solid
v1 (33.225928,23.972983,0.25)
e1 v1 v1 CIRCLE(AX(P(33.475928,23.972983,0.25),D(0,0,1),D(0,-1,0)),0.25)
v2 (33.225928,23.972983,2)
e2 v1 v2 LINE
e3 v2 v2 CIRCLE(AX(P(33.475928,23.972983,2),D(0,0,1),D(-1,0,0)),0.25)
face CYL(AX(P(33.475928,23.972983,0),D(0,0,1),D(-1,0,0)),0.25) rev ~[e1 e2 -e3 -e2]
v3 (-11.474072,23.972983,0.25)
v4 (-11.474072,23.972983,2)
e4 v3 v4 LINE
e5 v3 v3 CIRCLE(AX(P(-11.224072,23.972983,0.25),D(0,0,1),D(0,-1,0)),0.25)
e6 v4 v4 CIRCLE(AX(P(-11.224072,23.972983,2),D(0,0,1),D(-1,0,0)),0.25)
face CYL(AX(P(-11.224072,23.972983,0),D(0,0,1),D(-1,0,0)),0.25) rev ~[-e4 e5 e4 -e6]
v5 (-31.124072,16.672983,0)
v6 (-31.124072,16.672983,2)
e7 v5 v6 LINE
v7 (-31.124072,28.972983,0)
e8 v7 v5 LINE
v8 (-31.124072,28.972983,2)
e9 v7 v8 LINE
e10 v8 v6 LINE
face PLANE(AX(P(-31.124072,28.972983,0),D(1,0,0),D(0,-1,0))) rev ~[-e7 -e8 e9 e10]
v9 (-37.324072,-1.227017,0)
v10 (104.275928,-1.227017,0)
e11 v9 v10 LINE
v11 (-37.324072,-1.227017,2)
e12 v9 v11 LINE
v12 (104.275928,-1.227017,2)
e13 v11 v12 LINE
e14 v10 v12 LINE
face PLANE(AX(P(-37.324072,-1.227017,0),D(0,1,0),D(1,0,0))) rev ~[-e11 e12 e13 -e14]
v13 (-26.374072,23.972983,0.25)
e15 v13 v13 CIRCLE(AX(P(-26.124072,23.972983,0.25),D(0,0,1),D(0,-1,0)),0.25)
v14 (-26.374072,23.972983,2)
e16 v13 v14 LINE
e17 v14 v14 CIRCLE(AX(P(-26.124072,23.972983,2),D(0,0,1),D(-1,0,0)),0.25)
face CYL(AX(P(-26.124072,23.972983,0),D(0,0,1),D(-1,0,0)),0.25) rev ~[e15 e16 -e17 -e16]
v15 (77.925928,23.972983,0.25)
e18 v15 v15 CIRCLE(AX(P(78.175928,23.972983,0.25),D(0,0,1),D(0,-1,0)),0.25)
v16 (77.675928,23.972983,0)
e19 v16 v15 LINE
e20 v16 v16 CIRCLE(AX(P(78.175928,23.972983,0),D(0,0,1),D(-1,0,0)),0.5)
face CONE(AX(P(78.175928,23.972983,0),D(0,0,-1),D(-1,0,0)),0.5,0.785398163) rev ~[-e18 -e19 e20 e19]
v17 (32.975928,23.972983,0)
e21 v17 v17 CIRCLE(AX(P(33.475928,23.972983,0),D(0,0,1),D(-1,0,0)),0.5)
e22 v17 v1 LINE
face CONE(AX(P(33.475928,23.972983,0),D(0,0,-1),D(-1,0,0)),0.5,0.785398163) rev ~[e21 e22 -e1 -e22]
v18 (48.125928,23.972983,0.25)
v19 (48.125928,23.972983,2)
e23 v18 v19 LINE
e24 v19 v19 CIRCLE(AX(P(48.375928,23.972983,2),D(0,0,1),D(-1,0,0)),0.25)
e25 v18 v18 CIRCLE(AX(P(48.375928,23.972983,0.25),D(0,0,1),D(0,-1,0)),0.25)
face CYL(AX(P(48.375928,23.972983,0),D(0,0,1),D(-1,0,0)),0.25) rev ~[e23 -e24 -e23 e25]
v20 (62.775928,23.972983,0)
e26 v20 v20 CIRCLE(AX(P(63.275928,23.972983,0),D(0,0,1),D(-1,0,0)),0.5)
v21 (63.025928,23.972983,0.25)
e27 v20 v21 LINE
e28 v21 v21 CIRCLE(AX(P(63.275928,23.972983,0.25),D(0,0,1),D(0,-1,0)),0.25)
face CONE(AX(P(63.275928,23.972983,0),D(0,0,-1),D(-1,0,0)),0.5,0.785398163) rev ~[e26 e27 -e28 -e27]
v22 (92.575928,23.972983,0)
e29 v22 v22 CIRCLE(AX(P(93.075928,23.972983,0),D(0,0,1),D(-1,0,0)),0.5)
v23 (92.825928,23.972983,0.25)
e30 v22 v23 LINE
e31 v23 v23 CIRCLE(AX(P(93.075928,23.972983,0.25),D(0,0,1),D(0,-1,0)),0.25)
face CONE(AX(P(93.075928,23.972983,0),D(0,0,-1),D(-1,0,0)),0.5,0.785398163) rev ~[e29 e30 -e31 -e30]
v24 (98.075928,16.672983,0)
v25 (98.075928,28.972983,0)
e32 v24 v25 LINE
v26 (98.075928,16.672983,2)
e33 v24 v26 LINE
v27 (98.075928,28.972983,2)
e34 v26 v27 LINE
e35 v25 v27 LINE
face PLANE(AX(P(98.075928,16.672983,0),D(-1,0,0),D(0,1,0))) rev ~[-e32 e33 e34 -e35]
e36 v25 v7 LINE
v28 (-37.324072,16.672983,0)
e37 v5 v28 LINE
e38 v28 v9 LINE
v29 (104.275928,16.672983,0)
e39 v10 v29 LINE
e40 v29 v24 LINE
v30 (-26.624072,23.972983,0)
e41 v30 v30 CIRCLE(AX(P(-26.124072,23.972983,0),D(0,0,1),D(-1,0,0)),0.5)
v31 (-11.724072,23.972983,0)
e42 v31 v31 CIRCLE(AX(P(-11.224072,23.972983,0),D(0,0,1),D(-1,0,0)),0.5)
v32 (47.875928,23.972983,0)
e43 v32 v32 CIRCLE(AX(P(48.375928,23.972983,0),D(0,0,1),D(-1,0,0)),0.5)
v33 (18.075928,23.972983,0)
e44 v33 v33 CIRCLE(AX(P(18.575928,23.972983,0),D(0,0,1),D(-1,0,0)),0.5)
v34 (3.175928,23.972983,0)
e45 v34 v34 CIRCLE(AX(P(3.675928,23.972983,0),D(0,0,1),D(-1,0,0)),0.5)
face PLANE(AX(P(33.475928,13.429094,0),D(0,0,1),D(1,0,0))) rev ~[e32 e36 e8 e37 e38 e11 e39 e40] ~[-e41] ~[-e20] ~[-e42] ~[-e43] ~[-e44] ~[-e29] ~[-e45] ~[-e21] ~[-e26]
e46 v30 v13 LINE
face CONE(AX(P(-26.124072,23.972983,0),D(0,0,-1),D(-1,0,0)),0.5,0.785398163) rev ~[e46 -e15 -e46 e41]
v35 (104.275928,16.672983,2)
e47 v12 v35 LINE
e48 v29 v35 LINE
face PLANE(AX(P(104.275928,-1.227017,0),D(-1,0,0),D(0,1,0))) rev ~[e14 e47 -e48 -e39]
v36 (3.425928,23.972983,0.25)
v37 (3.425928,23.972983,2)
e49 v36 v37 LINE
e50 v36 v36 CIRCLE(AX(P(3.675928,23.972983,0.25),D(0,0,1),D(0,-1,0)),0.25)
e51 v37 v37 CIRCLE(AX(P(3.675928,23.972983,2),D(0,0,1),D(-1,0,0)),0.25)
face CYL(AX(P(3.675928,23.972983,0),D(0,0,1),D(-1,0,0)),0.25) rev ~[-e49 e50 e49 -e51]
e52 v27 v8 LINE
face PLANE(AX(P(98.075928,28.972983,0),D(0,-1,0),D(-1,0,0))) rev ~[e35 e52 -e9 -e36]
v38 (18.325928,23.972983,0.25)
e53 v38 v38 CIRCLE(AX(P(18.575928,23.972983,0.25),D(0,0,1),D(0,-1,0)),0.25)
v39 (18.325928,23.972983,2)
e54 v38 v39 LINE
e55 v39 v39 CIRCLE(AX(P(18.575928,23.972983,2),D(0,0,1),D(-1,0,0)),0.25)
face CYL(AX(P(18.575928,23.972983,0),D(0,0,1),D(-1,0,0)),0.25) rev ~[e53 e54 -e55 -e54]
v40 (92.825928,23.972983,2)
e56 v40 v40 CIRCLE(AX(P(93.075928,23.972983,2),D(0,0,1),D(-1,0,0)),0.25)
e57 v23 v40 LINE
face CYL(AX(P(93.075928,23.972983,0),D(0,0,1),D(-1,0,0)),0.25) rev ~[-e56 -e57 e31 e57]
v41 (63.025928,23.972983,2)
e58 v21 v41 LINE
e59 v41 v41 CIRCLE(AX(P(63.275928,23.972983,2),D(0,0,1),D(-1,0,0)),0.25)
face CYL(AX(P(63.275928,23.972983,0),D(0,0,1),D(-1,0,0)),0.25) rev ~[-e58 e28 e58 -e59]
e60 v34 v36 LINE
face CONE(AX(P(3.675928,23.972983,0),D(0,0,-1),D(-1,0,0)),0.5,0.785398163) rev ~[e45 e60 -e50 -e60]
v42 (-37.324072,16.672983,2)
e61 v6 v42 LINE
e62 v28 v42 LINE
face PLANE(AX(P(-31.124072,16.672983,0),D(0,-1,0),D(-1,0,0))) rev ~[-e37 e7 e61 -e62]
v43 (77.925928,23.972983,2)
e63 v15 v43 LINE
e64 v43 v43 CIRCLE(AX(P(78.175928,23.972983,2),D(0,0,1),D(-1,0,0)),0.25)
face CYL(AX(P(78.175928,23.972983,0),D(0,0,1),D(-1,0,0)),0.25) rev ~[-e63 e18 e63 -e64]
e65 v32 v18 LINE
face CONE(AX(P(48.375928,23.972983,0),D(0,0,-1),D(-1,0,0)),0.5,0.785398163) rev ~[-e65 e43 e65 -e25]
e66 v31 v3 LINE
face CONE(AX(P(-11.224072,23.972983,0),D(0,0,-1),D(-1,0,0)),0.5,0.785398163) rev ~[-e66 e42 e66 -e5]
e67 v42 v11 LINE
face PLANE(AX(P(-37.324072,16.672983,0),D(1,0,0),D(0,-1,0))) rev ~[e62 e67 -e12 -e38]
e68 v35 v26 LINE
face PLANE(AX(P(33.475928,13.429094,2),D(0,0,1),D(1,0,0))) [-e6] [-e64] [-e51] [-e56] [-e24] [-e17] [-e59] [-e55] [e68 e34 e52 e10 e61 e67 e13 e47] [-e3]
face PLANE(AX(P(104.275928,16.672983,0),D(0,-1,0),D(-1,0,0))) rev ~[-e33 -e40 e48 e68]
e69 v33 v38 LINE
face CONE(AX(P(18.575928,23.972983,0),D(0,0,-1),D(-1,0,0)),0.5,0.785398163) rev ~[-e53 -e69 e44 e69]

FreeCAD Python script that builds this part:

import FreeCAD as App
import Part
import Sketcher

V = App.Vector
Q = App.Units.Quantity


def add_polygon(sketch, points):
    """Adds a closed chain of lines whose ends are joined by coincident constraints."""
    first, n = sketch.GeometryCount, len(points)
    for a, b in zip(points, points[1:] + points[:1]):
        sketch.addGeometry(Part.LineSegment(App.Vector(*a, 0), App.Vector(*b, 0)), False)
    for i in range(n):
        sketch.addConstraint(Sketcher.Constraint("Coincident", first + i, 2, first + (i + 1) % n, 1))

doc = App.newDocument("Part")
params = doc.addObject("Spreadsheet::Sheet", "Params")
for row, (alias, value) in enumerate([
    ("sketch1_width", "141.6 mm"),
    ("sketch1_width2", "6.2 mm"),
    ("sketch1_height", "17.9 mm"),
    ("sketch1_height2", "12.3 mm"),
    ("pad1_length", "2 mm"),
    ("sketch2_diameter", "0.5 mm"),
    ("hole_diameter", "0.5 mm"),
    ("hole_csink_diameter", "1 mm"),
], start=1):
    params.set(f"A{row}", alias)
    params.set(f"B{row}", "=" + value)
    params.setAlias(f"B{row}", alias)

body = doc.addObject("PartDesign::Body", "Body")

sketch1 = doc.addObject("Sketcher::SketchObject", "Sketch")
body.addObject(sketch1)
sketch1.AttachmentSupport = (doc.XY_Plane, [""])
sketch1.MapMode = "FlatFace"
add_polygon(sketch1, [(-37, 17), (-37, -1), (104, -1), (104, 17), (98, 17), (98, 29), (-31, 29), (-31, 17)])
sketch1.addConstraint([
    Sketcher.Constraint("Vertical", 0),
    Sketcher.Constraint("Horizontal", 1),
    Sketcher.Constraint("Vertical", 2),
    Sketcher.Constraint("Horizontal", 3),
    Sketcher.Constraint("Vertical", 4),
    Sketcher.Constraint("Horizontal", 5),
    Sketcher.Constraint("Vertical", 6),
    Sketcher.Constraint("Horizontal", 7),
    Sketcher.Constraint("Horizontal", 3, 2, 6, 2),
    Sketcher.Constraint("Equal", 3, 7),
    Sketcher.Constraint("DistanceX", 1, 1, 1, 2, Q("141.6 mm")),
    Sketcher.Constraint("DistanceX", 3, 2, 3, 1, Q("6.2 mm")),
    Sketcher.Constraint("DistanceY", 0, 2, 0, 1, Q("17.9 mm")),
    Sketcher.Constraint("DistanceY", 4, 1, 4, 2, Q("12.3 mm")),
    Sketcher.Constraint("DistanceX", 0, 2, -1, 1, Q("37.324072 mm")),
    Sketcher.Constraint("DistanceY", 0, 2, -1, 1, Q("1.227017 mm")),
])
sketch1.setExpression("Constraints[18]", "Params.sketch1_width")
sketch1.setExpression("Constraints[19]", "Params.sketch1_width2")
sketch1.setExpression("Constraints[20]", "Params.sketch1_height")
sketch1.setExpression("Constraints[21]", "Params.sketch1_height2")
pad1 = doc.addObject("PartDesign::Pad", "Pad")
body.addObject(pad1)
pad1.Profile = sketch1
pad1.setExpression("Length", "Params.pad1_length")

sketch2 = doc.addObject("Sketcher::SketchObject", "Sketch001")
body.addObject(sketch2)
sketch2.AttachmentSupport = (doc.XY_Plane, [""])
sketch2.MapMode = "FlatFace"
sketch2.addGeometry([
    Part.Circle(V(-26.12, 23.97, 0), V(0, 0, 1), 0.25),
    Part.Circle(V(-11.22, 23.97, 0), V(0, 0, 1), 0.25),
    Part.Circle(V(3.68, 23.97, 0), V(0, 0, 1), 0.25),
    Part.Circle(V(18.58, 23.97, 0), V(0, 0, 1), 0.25),
    Part.Circle(V(33.48, 23.97, 0), V(0, 0, 1), 0.25),
    Part.Circle(V(48.38, 23.97, 0), V(0, 0, 1), 0.25),
    Part.Circle(V(63.28, 23.97, 0), V(0, 0, 1), 0.25),
    Part.Circle(V(78.18, 23.97, 0), V(0, 0, 1), 0.25),
    Part.Circle(V(93.08, 23.97, 0), V(0, 0, 1), 0.25),
], False)
sketch2.addConstraint([
    Sketcher.Constraint("Equal", 0, 1),
    Sketcher.Constraint("Equal", 1, 2),
    Sketcher.Constraint("Equal", 2, 3),
    Sketcher.Constraint("Equal", 3, 4),
    Sketcher.Constraint("Equal", 4, 5),
    Sketcher.Constraint("Equal", 5, 6),
    Sketcher.Constraint("Equal", 6, 7),
    Sketcher.Constraint("Equal", 7, 8),
    Sketcher.Constraint("Horizontal", 0, 3, 1, 3),
    Sketcher.Constraint("Horizontal", 1, 3, 2, 3),
    Sketcher.Constraint("Horizontal", 2, 3, 3, 3),
    Sketcher.Constraint("Horizontal", 3, 3, 4, 3),
    Sketcher.Constraint("Horizontal", 4, 3, 5, 3),
    Sketcher.Constraint("Horizontal", 5, 3, 6, 3),
    Sketcher.Constraint("Horizontal", 6, 3, 7, 3),
    Sketcher.Constraint("Horizontal", 7, 3, 8, 3),
    Sketcher.Constraint("Diameter", 0, Q("0.5 mm")),
    Sketcher.Constraint("DistanceX", 0, 3, 1, 3, Q("14.9 mm")),
    Sketcher.Constraint("DistanceX", 1, 3, 2, 3, Q("14.9 mm")),
    Sketcher.Constraint("DistanceX", 2, 3, 3, 3, Q("14.9 mm")),
    Sketcher.Constraint("DistanceX", 3, 3, 4, 3, Q("14.9 mm")),
    Sketcher.Constraint("DistanceX", 4, 3, 5, 3, Q("14.9 mm")),
    Sketcher.Constraint("DistanceX", 5, 3, 6, 3, Q("14.9 mm")),
    Sketcher.Constraint("DistanceX", 6, 3, 7, 3, Q("14.9 mm")),
    Sketcher.Constraint("DistanceX", 7, 3, 8, 3, Q("14.9 mm")),
    Sketcher.Constraint("DistanceX", 0, 3, -1, 1, Q("26.124072 mm")),
    Sketcher.Constraint("DistanceY", -1, 1, 0, 3, Q("23.972983 mm")),
])
sketch2.setExpression("Constraints[16]", "Params.sketch2_diameter")
doc.recompute()
hole = doc.addObject("PartDesign::Hole", "Hole")
body.addObject(hole)
hole.Profile = sketch2
hole.ThreadType = "None"
hole.setExpression("Diameter", "Params.hole_diameter")
hole.DepthType = "ThroughAll"
hole.HoleCutType = "Countersink"
hole.setExpression("HoleCutDiameter", "Params.hole_csink_diameter")
hole.HoleCutCountersinkAngle = 90
hole.Reversed = True

doc.recompute()
